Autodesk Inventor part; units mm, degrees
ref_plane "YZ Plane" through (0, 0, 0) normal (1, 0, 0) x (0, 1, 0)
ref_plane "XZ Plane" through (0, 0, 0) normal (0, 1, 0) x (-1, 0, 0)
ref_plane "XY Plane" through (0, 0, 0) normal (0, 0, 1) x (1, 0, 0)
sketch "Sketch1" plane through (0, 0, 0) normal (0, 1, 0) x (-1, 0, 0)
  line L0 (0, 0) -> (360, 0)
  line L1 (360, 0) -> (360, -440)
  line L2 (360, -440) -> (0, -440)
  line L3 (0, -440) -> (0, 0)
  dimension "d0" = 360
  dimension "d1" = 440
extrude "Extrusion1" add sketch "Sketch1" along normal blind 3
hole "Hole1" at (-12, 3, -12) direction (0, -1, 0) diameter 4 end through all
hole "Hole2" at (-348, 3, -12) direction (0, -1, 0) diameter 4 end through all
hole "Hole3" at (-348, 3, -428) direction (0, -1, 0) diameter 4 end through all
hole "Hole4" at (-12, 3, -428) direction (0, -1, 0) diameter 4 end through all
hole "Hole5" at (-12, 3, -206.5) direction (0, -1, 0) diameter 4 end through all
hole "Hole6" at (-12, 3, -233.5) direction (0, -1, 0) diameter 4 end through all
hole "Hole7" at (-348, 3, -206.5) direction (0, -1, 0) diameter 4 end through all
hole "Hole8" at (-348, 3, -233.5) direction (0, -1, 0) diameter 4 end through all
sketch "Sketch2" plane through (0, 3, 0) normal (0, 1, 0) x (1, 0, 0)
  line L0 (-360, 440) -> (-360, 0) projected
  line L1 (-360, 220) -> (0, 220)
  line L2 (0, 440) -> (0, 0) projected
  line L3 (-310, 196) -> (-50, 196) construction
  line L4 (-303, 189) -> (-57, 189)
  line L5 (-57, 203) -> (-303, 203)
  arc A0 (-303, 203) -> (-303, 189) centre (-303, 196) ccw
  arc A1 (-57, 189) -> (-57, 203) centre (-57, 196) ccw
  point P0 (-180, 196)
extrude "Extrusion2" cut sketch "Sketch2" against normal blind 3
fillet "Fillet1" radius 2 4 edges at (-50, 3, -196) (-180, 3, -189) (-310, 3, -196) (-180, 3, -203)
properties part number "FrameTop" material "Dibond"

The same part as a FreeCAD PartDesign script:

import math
import FreeCAD as App
import Part
import Sketcher

V = App.Vector


def edges_at(feature, points):
    """Names of the edges that pass closest to the given points."""
    edges = feature.Shape.Edges
    near = lambda p: min(range(len(edges)), key=lambda i: edges[i].distToShape(Part.Vertex(*p))[0])
    return sorted({f"Edge{near(p) + 1}" for p in points})

doc = App.newDocument("Part")
body = doc.addObject("PartDesign::Body", "Body")

sketch1 = body.newObject("Sketcher::SketchObject", "Sketch")
sketch1.AttachmentSupport = (doc.getObject("XZ_Plane"), [""])
sketch1.MapMode = "FlatFace"
sketch1.addGeometry([
    Part.LineSegment(V(-360, 0, 0), V(0, 0, 0)),
    Part.LineSegment(V(0, 0, 0), V(0, -440, 0)),
    Part.LineSegment(V(0, -440, 0), V(-360, -440, 0)),
    Part.LineSegment(V(-360, -440, 0), V(-360, 0, 0)),
], False)
sketch1.addConstraint([
    Sketcher.Constraint("Coincident", 0, 2, 1, 1),
    Sketcher.Constraint("Coincident", 1, 2, 2, 1),
    Sketcher.Constraint("Coincident", 2, 2, 3, 1),
    Sketcher.Constraint("Coincident", 3, 2, 0, 1),
    Sketcher.Constraint("Horizontal", 0),
    Sketcher.Constraint("Vertical", 1),
    Sketcher.Constraint("Horizontal", 2),
    Sketcher.Constraint("Vertical", 3),
    Sketcher.Constraint("Coincident", 0, 2, -1, 1),
    Sketcher.Constraint("DistanceX", 0, 1, 0, 2, 360.0),
    Sketcher.Constraint("DistanceY", 1, 2, 1, 1, 440.0),
])
pad1 = body.newObject("PartDesign::Pad", "Pad")
pad1.Profile = sketch1
pad1.Length = 3
pad1.Reversed = True

sketch2 = body.newObject("Sketcher::SketchObject", "Sketch001")
sketch2.AttachmentSupport = (doc.getObject("XZ_Plane"), [""])
sketch2.MapMode = "FlatFace"
sketch2.AttachmentOffset = App.Placement(V(0, 0, -3), App.Rotation())
sketch2.addGeometry(Part.Circle(V(-12, -12, 0), V(0, 0, 1), 2), False)
sketch2.addConstraint([
    Sketcher.Constraint("Diameter", 0, 4.0),
    Sketcher.Constraint("DistanceX", 0, 3, -1, 1, 12.0),
    Sketcher.Constraint("DistanceY", 0, 3, -1, 1, 12.0),
])
doc.recompute()
hole = body.newObject("PartDesign::Hole", "Hole")
hole.Profile = sketch2
hole.ThreadType = "None"
hole.Diameter = 4
hole.DepthType = "ThroughAll"
hole.Reversed = True

sketch3 = body.newObject("Sketcher::SketchObject", "Sketch002")
sketch3.AttachmentSupport = (doc.getObject("XZ_Plane"), [""])
sketch3.MapMode = "FlatFace"
sketch3.AttachmentOffset = App.Placement(V(0, 0, -3), App.Rotation())
sketch3.addGeometry(Part.Circle(V(-348, -12, 0), V(0, 0, 1), 2), False)
sketch3.addConstraint([
    Sketcher.Constraint("Diameter", 0, 4.0),
    Sketcher.Constraint("DistanceX", 0, 3, -1, 1, 348.0),
    Sketcher.Constraint("DistanceY", 0, 3, -1, 1, 12.0),
])
doc.recompute()
hole2 = body.newObject("PartDesign::Hole", "Hole001")
hole2.Profile = sketch3
hole2.ThreadType = "None"
hole2.Diameter = 4
hole2.DepthType = "ThroughAll"
hole2.Reversed = True

sketch4 = body.newObject("Sketcher::SketchObject", "Sketch003")
sketch4.AttachmentSupport = (doc.getObject("XZ_Plane"), [""])
sketch4.MapMode = "FlatFace"
sketch4.AttachmentOffset = App.Placement(V(0, 0, -3), App.Rotation())
sketch4.addGeometry(Part.Circle(V(-348, -428, 0), V(0, 0, 1), 2), False)
sketch4.addConstraint([
    Sketcher.Constraint("Diameter", 0, 4.0),
    Sketcher.Constraint("DistanceX", 0, 3, -1, 1, 348.0),
    Sketcher.Constraint("DistanceY", 0, 3, -1, 1, 428.0),
])
doc.recompute()
hole3 = body.newObject("PartDesign::Hole", "Hole002")
hole3.Profile = sketch4
hole3.ThreadType = "None"
hole3.Diameter = 4
hole3.DepthType = "ThroughAll"
hole3.Reversed = True

sketch5 = body.newObject("Sketcher::SketchObject", "Sketch004")
sketch5.AttachmentSupport = (doc.getObject("XZ_Plane"), [""])
sketch5.MapMode = "FlatFace"
sketch5.AttachmentOffset = App.Placement(V(0, 0, -3), App.Rotation())
sketch5.addGeometry(Part.Circle(V(-12, -428, 0), V(0, 0, 1), 2), False)
sketch5.addConstraint([
    Sketcher.Constraint("Diameter", 0, 4.0),
    Sketcher.Constraint("DistanceX", 0, 3, -1, 1, 12.0),
    Sketcher.Constraint("DistanceY", 0, 3, -1, 1, 428.0),
])
doc.recompute()
hole4 = body.newObject("PartDesign::Hole", "Hole003")
hole4.Profile = sketch5
hole4.ThreadType = "None"
hole4.Diameter = 4
hole4.DepthType = "ThroughAll"
hole4.Reversed = True

sketch6 = body.newObject("Sketcher::SketchObject", "Sketch005")
sketch6.AttachmentSupport = (doc.getObject("XZ_Plane"), [""])
sketch6.MapMode = "FlatFace"
sketch6.AttachmentOffset = App.Placement(V(0, 0, -3), App.Rotation())
sketch6.addGeometry(Part.Circle(V(-12, -206.5, 0), V(0, 0, 1), 2), False)
sketch6.addConstraint([
    Sketcher.Constraint("Diameter", 0, 4.0),
    Sketcher.Constraint("DistanceX", 0, 3, -1, 1, 12.0),
    Sketcher.Constraint("DistanceY", 0, 3, -1, 1, 206.5),
])
doc.recompute()
hole5 = body.newObject("PartDesign::Hole", "Hole004")
hole5.Profile = sketch6
hole5.ThreadType = "None"
hole5.Diameter = 4
hole5.DepthType = "ThroughAll"
hole5.Reversed = True

sketch7 = body.newObject("Sketcher::SketchObject", "Sketch006")
sketch7.AttachmentSupport = (doc.getObject("XZ_Plane"), [""])
sketch7.MapMode = "FlatFace"
sketch7.AttachmentOffset = App.Placement(V(0, 0, -3), App.Rotation())
sketch7.addGeometry(Part.Circle(V(-12, -233.5, 0), V(0, 0, 1), 2), False)
sketch7.addConstraint([
    Sketcher.Constraint("Diameter", 0, 4.0),
    Sketcher.Constraint("DistanceX", 0, 3, -1, 1, 12.0),
    Sketcher.Constraint("DistanceY", 0, 3, -1, 1, 233.5),
])
doc.recompute()
hole6 = body.newObject("PartDesign::Hole", "Hole005")
hole6.Profile = sketch7
hole6.ThreadType = "None"
hole6.Diameter = 4
hole6.DepthType = "ThroughAll"
hole6.Reversed = True

sketch8 = body.newObject("Sketcher::SketchObject", "Sketch007")
sketch8.AttachmentSupport = (doc.getObject("XZ_Plane"), [""])
sketch8.MapMode = "FlatFace"
sketch8.AttachmentOffset = App.Placement(V(0, 0, -3), App.Rotation())
sketch8.addGeometry(Part.Circle(V(-348, -206.5, 0), V(0, 0, 1), 2), False)
sketch8.addConstraint([
    Sketcher.Constraint("Diameter", 0, 4.0),
    Sketcher.Constraint("DistanceX", 0, 3, -1, 1, 348.0),
    Sketcher.Constraint("DistanceY", 0, 3, -1, 1, 206.5),
])
doc.recompute()
hole7 = body.newObject("PartDesign::Hole", "Hole006")
hole7.Profile = sketch8
hole7.ThreadType = "None"
hole7.Diameter = 4
hole7.DepthType = "ThroughAll"
hole7.Reversed = True

sketch9 = body.newObject("Sketcher::SketchObject", "Sketch008")
sketch9.AttachmentSupport = (doc.getObject("XZ_Plane"), [""])
sketch9.MapMode = "FlatFace"
sketch9.AttachmentOffset = App.Placement(V(0, 0, -3), App.Rotation())
sketch9.addGeometry(Part.Circle(V(-348, -233.5, 0), V(0, 0, 1), 2), False)
sketch9.addConstraint([
    Sketcher.Constraint("Diameter", 0, 4.0),
    Sketcher.Constraint("DistanceX", 0, 3, -1, 1, 348.0),
    Sketcher.Constraint("DistanceY", 0, 3, -1, 1, 233.5),
])
doc.recompute()
hole8 = body.newObject("PartDesign::Hole", "Hole007")
hole8.Profile = sketch9
hole8.ThreadType = "None"
hole8.Diameter = 4
hole8.DepthType = "ThroughAll"
hole8.Reversed = True

sketch10 = body.newObject("Sketcher::SketchObject", "Sketch009")
sketch10.AttachmentSupport = (doc.getObject("XZ_Plane"), [""])
sketch10.MapMode = "FlatFace"
sketch10.AttachmentOffset = App.Placement(V(0, 0, -3), App.Rotation())
sketch10.addGeometry([
    Part.ArcOfCircle(Part.Circle(V(-303, -196, 0), V(0, 0, 1), 7), math.radians(90), math.radians(270)),
    Part.LineSegment(V(-303, -189, 0), V(-57, -189, 0)),
    Part.ArcOfCircle(Part.Circle(V(-57, -196, 0), V(0, 0, 1), 7), math.radians(-90), math.radians(90)),
    Part.LineSegment(V(-57, -203, 0), V(-303, -203, 0)),
], False)
sketch10.addConstraint([
    Sketcher.Constraint("Tangent", 0, 1, 1, 1),
    Sketcher.Constraint("Tangent", 1, 2, 2, 2),
    Sketcher.Constraint("Tangent", 2, 1, 3, 1),
    Sketcher.Constraint("Tangent", 3, 2, 0, 2),
    Sketcher.Constraint("Horizontal", 1),
    Sketcher.Constraint("Horizontal", 3),
    Sketcher.Constraint("Radius", 0, 7.0),
    Sketcher.Constraint("DistanceX", 1, 1, 1, 2, 246.0),
    Sketcher.Constraint("DistanceX", 0, 3, -1, 1, 303.0),
    Sketcher.Constraint("DistanceY", 0, 3, -1, 1, 196.0),
])
pocket1 = body.newObject("PartDesign::Pocket", "Pocket")
pocket1.Profile = sketch10
pocket1.Length = 3
pocket1.Reversed = True
doc.recompute()

fillet = body.newObject("PartDesign::Fillet", "Fillet")
fillet.Base = (pocket1, edges_at(pocket1, [
    (-50, 3, -196),
    (-180, 3, -189),
    (-310, 3, -196),
    (-180, 3, -203),
]))
fillet.Radius = 2

doc.recompute()
